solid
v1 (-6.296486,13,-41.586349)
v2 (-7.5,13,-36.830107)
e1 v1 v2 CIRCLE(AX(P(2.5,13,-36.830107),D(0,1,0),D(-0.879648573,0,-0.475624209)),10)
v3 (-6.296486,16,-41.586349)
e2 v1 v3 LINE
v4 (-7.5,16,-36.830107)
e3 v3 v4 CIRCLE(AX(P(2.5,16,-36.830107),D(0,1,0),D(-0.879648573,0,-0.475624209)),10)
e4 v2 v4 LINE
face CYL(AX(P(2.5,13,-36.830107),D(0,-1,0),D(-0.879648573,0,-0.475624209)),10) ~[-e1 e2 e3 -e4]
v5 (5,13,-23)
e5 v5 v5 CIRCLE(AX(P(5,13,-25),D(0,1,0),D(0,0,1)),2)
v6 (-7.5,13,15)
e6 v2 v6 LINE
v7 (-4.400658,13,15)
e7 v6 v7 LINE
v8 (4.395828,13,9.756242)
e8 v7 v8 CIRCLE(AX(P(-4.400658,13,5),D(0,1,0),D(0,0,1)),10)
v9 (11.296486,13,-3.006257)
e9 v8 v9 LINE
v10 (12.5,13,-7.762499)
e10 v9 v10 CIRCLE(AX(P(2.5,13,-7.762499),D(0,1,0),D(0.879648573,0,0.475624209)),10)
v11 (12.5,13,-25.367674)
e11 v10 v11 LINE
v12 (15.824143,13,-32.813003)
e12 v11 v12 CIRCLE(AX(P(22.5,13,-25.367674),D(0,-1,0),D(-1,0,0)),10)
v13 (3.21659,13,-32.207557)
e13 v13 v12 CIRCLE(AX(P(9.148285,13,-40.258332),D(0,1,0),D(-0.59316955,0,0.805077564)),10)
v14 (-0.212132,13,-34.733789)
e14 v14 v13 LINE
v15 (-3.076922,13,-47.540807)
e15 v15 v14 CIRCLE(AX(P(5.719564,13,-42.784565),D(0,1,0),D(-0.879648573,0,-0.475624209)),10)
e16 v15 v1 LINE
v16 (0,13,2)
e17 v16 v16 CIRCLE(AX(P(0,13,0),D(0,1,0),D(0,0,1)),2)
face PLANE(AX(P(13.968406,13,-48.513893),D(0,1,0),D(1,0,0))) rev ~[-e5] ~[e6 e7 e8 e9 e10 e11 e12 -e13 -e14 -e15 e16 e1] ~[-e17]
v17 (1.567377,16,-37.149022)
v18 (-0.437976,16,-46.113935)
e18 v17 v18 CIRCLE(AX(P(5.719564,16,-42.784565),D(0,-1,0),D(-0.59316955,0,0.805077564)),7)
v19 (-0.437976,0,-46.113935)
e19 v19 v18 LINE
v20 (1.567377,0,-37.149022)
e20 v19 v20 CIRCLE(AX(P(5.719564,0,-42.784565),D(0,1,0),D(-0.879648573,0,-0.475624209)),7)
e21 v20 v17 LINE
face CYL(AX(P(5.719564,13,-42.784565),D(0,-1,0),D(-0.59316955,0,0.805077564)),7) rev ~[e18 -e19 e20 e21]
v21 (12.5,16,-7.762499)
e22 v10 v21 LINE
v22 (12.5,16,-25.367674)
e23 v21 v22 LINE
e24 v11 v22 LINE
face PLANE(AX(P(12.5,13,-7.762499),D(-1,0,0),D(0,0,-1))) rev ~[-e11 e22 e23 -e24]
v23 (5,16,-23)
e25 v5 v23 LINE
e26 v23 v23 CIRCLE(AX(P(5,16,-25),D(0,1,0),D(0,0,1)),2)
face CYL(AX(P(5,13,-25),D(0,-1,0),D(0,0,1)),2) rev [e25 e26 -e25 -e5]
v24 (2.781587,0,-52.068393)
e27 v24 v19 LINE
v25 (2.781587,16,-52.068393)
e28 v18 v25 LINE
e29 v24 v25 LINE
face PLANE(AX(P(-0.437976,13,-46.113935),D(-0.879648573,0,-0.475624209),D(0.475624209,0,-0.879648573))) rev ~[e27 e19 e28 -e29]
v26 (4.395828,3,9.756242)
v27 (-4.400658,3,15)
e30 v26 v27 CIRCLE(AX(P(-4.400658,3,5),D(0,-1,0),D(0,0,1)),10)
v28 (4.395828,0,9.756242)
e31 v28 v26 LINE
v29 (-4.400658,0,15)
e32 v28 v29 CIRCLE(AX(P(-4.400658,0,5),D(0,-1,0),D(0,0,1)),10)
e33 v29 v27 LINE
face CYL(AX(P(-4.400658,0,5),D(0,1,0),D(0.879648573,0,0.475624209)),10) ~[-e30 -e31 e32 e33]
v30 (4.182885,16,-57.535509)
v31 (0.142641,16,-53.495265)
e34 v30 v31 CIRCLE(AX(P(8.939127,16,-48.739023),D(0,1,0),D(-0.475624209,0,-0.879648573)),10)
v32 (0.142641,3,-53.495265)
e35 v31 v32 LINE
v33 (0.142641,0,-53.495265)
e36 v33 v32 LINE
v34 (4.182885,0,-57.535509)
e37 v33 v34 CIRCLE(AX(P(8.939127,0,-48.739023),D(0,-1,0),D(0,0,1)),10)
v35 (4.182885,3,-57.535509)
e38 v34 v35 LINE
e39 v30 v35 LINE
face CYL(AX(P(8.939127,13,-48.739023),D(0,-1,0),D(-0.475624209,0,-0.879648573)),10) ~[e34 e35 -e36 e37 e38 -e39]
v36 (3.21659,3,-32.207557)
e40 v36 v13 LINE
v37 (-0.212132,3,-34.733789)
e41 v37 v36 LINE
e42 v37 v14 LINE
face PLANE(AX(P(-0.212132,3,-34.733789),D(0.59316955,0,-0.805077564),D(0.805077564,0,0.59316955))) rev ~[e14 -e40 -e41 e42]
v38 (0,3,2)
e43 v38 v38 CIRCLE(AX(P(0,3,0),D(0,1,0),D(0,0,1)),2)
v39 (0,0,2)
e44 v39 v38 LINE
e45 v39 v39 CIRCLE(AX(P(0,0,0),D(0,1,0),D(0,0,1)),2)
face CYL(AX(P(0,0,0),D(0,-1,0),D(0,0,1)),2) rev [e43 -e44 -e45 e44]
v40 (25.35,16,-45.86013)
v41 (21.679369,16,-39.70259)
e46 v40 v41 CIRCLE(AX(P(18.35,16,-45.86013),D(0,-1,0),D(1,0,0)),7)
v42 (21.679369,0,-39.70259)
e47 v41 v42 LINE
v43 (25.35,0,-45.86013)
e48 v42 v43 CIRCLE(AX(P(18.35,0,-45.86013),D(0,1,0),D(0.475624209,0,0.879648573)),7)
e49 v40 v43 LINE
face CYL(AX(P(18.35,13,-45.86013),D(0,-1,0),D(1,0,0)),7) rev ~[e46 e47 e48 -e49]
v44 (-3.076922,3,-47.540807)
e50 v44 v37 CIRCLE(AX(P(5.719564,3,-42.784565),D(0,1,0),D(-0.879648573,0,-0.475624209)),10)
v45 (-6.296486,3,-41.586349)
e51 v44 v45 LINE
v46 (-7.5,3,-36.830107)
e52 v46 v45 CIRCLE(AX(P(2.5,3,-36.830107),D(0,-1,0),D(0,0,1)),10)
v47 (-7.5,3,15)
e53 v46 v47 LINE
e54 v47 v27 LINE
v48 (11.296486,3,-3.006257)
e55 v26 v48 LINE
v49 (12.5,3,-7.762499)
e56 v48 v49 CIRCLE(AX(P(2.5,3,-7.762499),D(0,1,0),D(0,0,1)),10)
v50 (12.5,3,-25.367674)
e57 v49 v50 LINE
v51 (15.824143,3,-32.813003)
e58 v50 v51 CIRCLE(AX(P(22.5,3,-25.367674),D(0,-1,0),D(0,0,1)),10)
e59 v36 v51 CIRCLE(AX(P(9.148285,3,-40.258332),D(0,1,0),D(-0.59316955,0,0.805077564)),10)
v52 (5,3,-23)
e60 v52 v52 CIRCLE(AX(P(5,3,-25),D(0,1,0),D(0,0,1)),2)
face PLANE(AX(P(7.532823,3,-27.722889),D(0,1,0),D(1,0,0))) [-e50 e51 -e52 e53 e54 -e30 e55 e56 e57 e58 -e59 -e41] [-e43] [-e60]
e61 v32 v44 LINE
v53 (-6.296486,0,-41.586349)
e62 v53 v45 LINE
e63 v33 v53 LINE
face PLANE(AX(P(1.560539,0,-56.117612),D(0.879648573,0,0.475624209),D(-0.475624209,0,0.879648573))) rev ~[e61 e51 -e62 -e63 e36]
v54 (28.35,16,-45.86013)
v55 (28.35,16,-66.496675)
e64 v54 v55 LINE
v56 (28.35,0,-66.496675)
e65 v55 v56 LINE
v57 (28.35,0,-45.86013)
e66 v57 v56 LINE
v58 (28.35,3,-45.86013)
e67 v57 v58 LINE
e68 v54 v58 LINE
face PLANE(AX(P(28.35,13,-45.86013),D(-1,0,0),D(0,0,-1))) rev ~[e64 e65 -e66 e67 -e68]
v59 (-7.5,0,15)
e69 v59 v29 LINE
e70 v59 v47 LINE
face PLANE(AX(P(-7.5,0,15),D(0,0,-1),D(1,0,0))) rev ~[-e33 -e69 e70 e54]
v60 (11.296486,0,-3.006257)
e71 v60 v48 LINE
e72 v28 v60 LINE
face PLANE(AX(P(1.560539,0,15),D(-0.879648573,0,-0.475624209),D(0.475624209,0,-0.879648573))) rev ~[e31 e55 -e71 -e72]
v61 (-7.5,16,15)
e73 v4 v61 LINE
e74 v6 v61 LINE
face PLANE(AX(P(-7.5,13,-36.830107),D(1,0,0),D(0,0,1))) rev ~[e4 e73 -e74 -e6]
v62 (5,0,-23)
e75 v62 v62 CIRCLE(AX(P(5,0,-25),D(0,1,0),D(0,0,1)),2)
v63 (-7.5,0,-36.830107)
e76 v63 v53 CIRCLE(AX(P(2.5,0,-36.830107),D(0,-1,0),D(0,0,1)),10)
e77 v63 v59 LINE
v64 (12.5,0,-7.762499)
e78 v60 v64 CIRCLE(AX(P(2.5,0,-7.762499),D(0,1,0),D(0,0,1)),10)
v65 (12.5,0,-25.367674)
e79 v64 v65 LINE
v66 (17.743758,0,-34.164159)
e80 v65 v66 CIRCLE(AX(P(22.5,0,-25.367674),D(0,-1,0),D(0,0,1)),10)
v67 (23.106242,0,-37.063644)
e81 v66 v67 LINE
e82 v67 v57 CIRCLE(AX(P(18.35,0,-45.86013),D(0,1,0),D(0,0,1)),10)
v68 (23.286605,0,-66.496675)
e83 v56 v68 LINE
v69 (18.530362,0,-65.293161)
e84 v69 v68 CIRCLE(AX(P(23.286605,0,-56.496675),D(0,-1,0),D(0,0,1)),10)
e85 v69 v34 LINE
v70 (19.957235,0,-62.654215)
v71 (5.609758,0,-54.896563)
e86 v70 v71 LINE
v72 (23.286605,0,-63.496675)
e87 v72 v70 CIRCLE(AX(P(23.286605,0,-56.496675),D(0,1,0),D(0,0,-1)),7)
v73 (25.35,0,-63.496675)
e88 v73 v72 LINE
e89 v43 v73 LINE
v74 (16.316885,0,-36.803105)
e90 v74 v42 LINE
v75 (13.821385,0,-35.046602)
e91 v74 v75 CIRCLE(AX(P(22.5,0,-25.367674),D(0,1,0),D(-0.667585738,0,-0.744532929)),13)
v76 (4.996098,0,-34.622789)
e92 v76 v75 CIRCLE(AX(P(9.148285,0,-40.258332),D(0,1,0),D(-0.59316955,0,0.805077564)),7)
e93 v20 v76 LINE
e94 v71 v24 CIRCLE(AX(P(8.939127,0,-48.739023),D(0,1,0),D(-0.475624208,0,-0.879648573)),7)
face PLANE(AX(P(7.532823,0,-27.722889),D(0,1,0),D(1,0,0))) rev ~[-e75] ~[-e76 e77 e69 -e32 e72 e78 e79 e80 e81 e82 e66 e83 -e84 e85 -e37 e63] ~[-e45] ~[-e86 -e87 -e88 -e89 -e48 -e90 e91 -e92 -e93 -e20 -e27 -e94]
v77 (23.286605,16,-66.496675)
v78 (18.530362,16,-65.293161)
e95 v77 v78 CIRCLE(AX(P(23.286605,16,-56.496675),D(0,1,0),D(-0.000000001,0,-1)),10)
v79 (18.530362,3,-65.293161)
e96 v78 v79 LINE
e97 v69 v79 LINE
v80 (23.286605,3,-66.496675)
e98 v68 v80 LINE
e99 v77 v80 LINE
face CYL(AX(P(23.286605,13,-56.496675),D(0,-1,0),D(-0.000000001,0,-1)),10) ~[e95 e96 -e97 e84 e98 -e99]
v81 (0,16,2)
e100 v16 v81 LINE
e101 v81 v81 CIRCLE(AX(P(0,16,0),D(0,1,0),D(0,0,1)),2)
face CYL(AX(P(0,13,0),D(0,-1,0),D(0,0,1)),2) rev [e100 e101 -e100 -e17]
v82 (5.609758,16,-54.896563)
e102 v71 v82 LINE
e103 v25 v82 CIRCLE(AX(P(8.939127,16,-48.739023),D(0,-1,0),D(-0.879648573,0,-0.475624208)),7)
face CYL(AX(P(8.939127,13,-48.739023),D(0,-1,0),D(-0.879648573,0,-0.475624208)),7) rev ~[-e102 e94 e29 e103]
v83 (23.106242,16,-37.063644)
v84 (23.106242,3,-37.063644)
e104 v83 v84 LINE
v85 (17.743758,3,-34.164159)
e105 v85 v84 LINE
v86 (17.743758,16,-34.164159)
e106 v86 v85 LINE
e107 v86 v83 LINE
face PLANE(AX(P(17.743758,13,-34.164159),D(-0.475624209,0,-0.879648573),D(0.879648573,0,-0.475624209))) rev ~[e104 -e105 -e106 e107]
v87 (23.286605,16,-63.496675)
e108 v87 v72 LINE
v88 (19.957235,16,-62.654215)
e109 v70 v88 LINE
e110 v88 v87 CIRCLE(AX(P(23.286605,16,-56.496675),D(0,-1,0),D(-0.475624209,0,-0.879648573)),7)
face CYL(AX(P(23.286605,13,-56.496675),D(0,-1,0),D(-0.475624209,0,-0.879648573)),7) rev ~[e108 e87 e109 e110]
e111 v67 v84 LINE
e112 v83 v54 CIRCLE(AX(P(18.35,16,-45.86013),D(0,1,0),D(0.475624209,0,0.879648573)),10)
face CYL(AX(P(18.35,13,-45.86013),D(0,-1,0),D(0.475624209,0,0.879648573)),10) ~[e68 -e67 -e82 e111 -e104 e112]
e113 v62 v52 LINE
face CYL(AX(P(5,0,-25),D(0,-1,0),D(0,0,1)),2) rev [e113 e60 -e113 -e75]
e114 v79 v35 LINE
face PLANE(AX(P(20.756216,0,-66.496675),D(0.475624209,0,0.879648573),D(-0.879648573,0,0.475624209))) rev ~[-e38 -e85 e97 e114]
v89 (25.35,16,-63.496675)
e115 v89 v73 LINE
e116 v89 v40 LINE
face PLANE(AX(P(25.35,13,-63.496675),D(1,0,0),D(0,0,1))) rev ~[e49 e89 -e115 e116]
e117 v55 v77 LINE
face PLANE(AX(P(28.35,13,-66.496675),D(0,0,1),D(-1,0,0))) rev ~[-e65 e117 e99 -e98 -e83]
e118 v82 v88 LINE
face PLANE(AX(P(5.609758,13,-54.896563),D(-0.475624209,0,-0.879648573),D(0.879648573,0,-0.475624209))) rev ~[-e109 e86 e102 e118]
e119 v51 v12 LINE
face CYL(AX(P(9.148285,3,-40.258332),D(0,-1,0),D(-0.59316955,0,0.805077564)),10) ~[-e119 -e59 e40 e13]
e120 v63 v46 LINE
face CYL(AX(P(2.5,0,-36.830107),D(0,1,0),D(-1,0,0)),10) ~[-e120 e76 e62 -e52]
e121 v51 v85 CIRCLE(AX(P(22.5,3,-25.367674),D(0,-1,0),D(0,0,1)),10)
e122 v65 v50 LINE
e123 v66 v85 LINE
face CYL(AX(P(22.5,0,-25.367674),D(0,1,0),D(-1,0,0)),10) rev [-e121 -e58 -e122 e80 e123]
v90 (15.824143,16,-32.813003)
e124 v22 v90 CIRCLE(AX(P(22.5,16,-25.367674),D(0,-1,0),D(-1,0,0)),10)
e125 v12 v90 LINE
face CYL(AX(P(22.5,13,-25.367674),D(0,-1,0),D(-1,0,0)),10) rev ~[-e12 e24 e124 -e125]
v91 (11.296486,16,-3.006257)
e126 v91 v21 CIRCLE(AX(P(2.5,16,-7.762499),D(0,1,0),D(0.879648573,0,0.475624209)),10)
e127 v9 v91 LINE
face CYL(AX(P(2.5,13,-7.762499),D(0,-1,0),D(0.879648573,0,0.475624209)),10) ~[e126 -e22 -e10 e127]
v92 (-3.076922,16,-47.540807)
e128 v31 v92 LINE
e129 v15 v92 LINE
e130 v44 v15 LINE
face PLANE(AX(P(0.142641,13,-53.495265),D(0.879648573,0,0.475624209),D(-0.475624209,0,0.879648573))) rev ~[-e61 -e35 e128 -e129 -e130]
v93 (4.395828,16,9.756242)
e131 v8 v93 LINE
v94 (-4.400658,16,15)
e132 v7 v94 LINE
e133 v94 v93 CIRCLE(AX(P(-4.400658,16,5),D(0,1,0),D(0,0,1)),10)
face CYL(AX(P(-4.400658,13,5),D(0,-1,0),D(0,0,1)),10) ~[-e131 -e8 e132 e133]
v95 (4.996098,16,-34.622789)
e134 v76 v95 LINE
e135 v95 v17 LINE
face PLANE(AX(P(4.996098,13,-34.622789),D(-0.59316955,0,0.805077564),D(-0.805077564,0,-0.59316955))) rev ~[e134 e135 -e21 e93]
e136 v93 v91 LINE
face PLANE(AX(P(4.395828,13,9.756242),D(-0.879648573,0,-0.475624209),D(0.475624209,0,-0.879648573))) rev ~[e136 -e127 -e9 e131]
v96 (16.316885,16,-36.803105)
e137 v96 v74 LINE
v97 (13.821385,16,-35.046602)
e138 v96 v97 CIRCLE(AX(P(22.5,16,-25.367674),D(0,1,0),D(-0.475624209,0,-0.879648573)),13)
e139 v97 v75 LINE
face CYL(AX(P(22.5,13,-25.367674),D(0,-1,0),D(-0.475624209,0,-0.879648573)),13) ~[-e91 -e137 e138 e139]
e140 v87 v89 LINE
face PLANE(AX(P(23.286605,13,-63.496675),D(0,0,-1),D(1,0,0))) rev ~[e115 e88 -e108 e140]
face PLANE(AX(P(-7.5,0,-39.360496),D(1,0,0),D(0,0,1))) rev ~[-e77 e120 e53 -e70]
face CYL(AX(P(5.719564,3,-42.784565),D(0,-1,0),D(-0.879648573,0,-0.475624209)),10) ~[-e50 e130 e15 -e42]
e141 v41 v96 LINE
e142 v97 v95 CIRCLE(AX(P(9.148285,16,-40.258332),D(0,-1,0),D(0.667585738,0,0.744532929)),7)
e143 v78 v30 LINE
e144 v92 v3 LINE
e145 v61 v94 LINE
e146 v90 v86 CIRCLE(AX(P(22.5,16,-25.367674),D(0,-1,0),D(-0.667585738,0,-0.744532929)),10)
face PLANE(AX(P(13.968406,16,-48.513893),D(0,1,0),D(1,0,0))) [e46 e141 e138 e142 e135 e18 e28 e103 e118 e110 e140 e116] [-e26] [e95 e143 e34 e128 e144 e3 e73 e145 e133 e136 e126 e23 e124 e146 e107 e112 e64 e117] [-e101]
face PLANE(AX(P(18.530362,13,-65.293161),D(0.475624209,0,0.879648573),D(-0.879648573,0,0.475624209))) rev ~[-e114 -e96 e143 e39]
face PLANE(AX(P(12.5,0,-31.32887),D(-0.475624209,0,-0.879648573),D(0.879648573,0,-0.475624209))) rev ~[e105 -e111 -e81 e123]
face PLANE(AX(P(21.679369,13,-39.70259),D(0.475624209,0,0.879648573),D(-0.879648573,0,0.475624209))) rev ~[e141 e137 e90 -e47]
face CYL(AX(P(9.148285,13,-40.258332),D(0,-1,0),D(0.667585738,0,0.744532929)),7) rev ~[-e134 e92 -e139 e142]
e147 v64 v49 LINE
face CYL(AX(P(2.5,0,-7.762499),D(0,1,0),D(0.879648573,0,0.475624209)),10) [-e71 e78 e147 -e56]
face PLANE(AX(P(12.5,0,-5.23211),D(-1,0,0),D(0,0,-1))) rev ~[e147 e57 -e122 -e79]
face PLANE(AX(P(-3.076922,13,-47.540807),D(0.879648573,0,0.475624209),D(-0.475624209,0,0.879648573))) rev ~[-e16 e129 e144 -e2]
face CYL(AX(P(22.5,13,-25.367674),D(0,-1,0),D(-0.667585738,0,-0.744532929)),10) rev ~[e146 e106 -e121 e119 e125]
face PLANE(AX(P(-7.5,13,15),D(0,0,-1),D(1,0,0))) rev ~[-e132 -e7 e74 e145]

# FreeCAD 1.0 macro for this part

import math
import FreeCAD as App
import Part
import Sketcher

V = App.Vector
Q = App.Units.Quantity


def edges_at(feature, points):
    """Names of the edges that pass closest to the given points."""
    edges = feature.Shape.Edges
    near = lambda p: min(range(len(edges)), key=lambda i: edges[i].distToShape(Part.Vertex(*p))[0])
    return sorted({f"Edge{near(p) + 1}" for p in points})


def add_polygon(sketch, points):
    """Adds a closed chain of lines whose ends are joined by coincident constraints."""
    first, n = sketch.GeometryCount, len(points)
    for a, b in zip(points, points[1:] + points[:1]):
        sketch.addGeometry(Part.LineSegment(App.Vector(*a, 0), App.Vector(*b, 0)), False)
    for i in range(n):
        sketch.addConstraint(Sketcher.Constraint("Coincident", first + i, 2, first + (i + 1) % n, 1))

doc = App.newDocument("Part")
body = doc.addObject("PartDesign::Body", "Body")

# Sketch on XZ plane
sketch1 = body.newObject("Sketcher::SketchObject", "Sketch")
sketch1.AttachmentSupport = (doc.getObject("XZ_Plane"), [""])
sketch1.MapMode = "FlatFace"
add_polygon(sketch1, [(1.560539, 15), (12.5, -5.23211), (12.5, -31.32887), (28.35, -39.898933), (28.35, -66.496675), (20.756216, -66.496675), (1.560539, -56.117612), (-7.5, -39.360496), (-7.5, 15)])  # lines 0-8
sketch1.addGeometry(Part.Circle(V(0, 0, 0), V(0, 0, 1), 2), False)  # 9
sketch1.addGeometry(Part.Circle(V(5, -25, 0), V(0, 0, 1), 2), False)  # 10
sketch1.addConstraint(Sketcher.Constraint("Vertical", 1))
sketch1.addConstraint(Sketcher.Constraint("Vertical", 3))
sketch1.addConstraint(Sketcher.Constraint("Horizontal", 4))
sketch1.addConstraint(Sketcher.Constraint("Vertical", 7))
sketch1.addConstraint(Sketcher.Constraint("Horizontal", 8))
sketch1.addConstraint(Sketcher.Constraint("Coincident", 9, 3, -1, 1))
sketch1.addConstraint(Sketcher.Constraint("Equal", 9, 10))
sketch1.addConstraint(Sketcher.Constraint("Parallel", 2, 5))
sketch1.addConstraint(Sketcher.Constraint("Parallel", 0, 6))
sketch1.addConstraint(Sketcher.Constraint("Vertical", 5, 2, 8, 2))
sketch1.addConstraint(Sketcher.Constraint("Diameter", 9, Q("4 mm")))
sketch1.addConstraint(Sketcher.Constraint("DistanceX", -1, 1, 10, 3, Q("5 mm")))
sketch1.addConstraint(Sketcher.Constraint("DistanceY", 10, 3, -1, 1, Q("25 mm")))
sketch1.addConstraint(Sketcher.Constraint("DistanceY", -1, 1, 7, 2, Q("15 mm")))
sketch1.addConstraint(Sketcher.Constraint("Angle", 0, Q("-61.6 deg")))
sketch1.addConstraint(Sketcher.Constraint("Angle", 2, Q("-28.4 deg")))
sketch1.addConstraint(Sketcher.Constraint("DistanceX", 6, 2, 1, 2, Q("20 mm")))
sketch1.addConstraint(Sketcher.Constraint("DistanceX", -1, 1, 0, 2, Q("12.5 mm")))
sketch1.addConstraint(Sketcher.Constraint("DistanceX", -1, 1, 2, 2, Q("28.35 mm")))
sketch1.addConstraint(Sketcher.Constraint("DistanceX", 8, 1, 8, 2, Q("9.060539 mm")))
sketch1.addConstraint(Sketcher.Constraint("DistanceY", 1, 2, 1, 1, Q("26.09676 mm")))
sketch1.addConstraint(Sketcher.Constraint("DistanceX", 4, 2, 4, 1, Q("7.593784 mm")))
sketch1.addConstraint(Sketcher.Constraint("DistanceY", 3, 2, 3, 1, Q("26.597742 mm")))
pad1 = body.newObject("PartDesign::Pad", "Pad")
pad1.Profile = sketch1
pad1.Length = 3
pad1.Reversed = True
doc.recompute()

fillet = body.newObject("PartDesign::Fillet", "Fillet")
fillet.Base = (pad1, edges_at(pad1, [
    (-7.5, 1.5, -39.36),
    (1.561, 1.5, -56.118),
    (20.756, 1.5, -66.497),
    (28.35, 1.5, -39.899),
    (12.5, 1.5, -31.329),
    (12.5, 1.5, -5.232),
    (1.561, 1.5, 15),
]))
fillet.Radius = 10

# Sketch on XZ plane
sketch2 = body.newObject("Sketcher::SketchObject", "Sketch001")
sketch2.AttachmentSupport = (doc.getObject("XZ_Plane"), [""])
sketch2.MapMode = "FlatFace"
sketch2.AttachmentOffset = App.Placement(V(0, 0, -3), App.Rotation())
sketch2.addGeometry(Part.LineSegment(V(-0.212132, -34.733789, 0), V(3.21659, -32.207557, 0)), False)
sketch2.addGeometry(Part.ArcOfCircle(Part.Circle(V(9.148285, -40.258332, 0), V(0, 0, 1), 10), math.radians(48.118997), math.radians(126.382253)), False)
sketch2.addGeometry(Part.ArcOfCircle(Part.Circle(V(22.5, -25.367674, 0), V(0, 0, 1), 10), math.radians(-131.881003), math.radians(-118.4)), False)
sketch2.addGeometry(Part.LineSegment(V(17.743758, -34.164159, 0), V(23.106242, -37.063644, 0)), False)
sketch2.addGeometry(Part.ArcOfCircle(Part.Circle(V(18.35, -45.86013, 0), V(0, 0, 1), 10), math.radians(0), math.radians(61.6)), False)
sketch2.addGeometry(Part.LineSegment(V(28.35, -45.86013, 0), V(28.35, -66.496675, 0)), False)
sketch2.addGeometry(Part.LineSegment(V(28.35, -66.496675, 0), V(23.286605, -66.496675, 0)), False)
sketch2.addGeometry(Part.ArcOfCircle(Part.Circle(V(23.286605, -56.496675, 0), V(0, 0, 1), 10), math.radians(-118.4), math.radians(-90)), False)
sketch2.addGeometry(Part.LineSegment(V(18.530362, -65.293161, 0), V(4.182885, -57.535509, 0)), False)
sketch2.addGeometry(Part.ArcOfCircle(Part.Circle(V(8.939127, -48.739023, 0), V(0, 0, 1), 10), math.radians(-151.6), math.radians(-118.4)), False)
sketch2.addGeometry(Part.LineSegment(V(0.142641, -53.495265, 0), V(-3.076922, -47.540807, 0)), False)
sketch2.addGeometry(Part.ArcOfCircle(Part.Circle(V(5.719564, -42.784565, 0), V(0, 0, 1), 10), math.radians(126.382253), math.radians(208.4)), False)
sketch2.addGeometry(Part.LineSegment(V(4.996098, -34.622789, 0), V(1.567377, -37.149022, 0)), False)
sketch2.addGeometry(Part.ArcOfCircle(Part.Circle(V(5.719564, -42.784565, 0), V(0, 0, 1), 7), math.radians(126.382253), math.radians(208.4)), False)
sketch2.addGeometry(Part.LineSegment(V(-0.437976, -46.113935, 0), V(2.781587, -52.068393, 0)), False)
sketch2.addGeometry(Part.ArcOfCircle(Part.Circle(V(8.939127, -48.739023, 0), V(0, 0, 1), 7), math.radians(-151.6), math.radians(-118.4)), False)
sketch2.addGeometry(Part.LineSegment(V(5.609758, -54.896563, 0), V(19.957235, -62.654215, 0)), False)
sketch2.addGeometry(Part.ArcOfCircle(Part.Circle(V(23.286605, -56.496675, 0), V(0, 0, 1), 7), math.radians(-118.4), math.radians(-90)), False)
sketch2.addGeometry(Part.LineSegment(V(23.286605, -63.496675, 0), V(25.35, -63.496675, 0)), False)
sketch2.addGeometry(Part.LineSegment(V(25.35, -63.496675, 0), V(25.35, -45.86013, 0)), False)
sketch2.addGeometry(Part.ArcOfCircle(Part.Circle(V(18.35, -45.86013, 0), V(0, 0, 1), 7), math.radians(0), math.radians(61.6)), False)
sketch2.addGeometry(Part.LineSegment(V(21.679369, -39.70259, 0), V(16.316885, -36.803105, 0)), False)
sketch2.addGeometry(Part.ArcOfCircle(Part.Circle(V(22.5, -25.367674, 0), V(0, 0, 1), 13), math.radians(-131.881003), math.radians(-118.4)), False)
sketch2.addGeometry(Part.ArcOfCircle(Part.Circle(V(9.148285, -40.258332, 0), V(0, 0, 1), 7), math.radians(48.118997), math.radians(126.382253)), False)
sketch2.addConstraint(Sketcher.Constraint("Tangent", 0, 2, 1, 2))
sketch2.addConstraint(Sketcher.Constraint("Tangent", 1, 1, 2, 1))
sketch2.addConstraint(Sketcher.Constraint("Tangent", 2, 2, 3, 1))
sketch2.addConstraint(Sketcher.Constraint("Tangent", 3, 2, 4, 2))
sketch2.addConstraint(Sketcher.Constraint("Tangent", 4, 1, 5, 1))
sketch2.addConstraint(Sketcher.Constraint("Coincident", 5, 2, 6, 1))
sketch2.addConstraint(Sketcher.Constraint("Tangent", 6, 2, 7, 2))
sketch2.addConstraint(Sketcher.Constraint("Tangent", 7, 1, 8, 1))
sketch2.addConstraint(Sketcher.Constraint("Tangent", 8, 2, 9, 2))
sketch2.addConstraint(Sketcher.Constraint("Tangent", 9, 1, 10, 1))
sketch2.addConstraint(Sketcher.Constraint("Tangent", 10, 2, 11, 2))
sketch2.addConstraint(Sketcher.Constraint("Tangent", 11, 1, 0, 1))
sketch2.addConstraint(Sketcher.Constraint("Tangent", 12, 2, 13, 1))
sketch2.addConstraint(Sketcher.Constraint("Tangent", 13, 2, 14, 1))
sketch2.addConstraint(Sketcher.Constraint("Tangent", 14, 2, 15, 1))
sketch2.addConstraint(Sketcher.Constraint("Tangent", 15, 2, 16, 1))
sketch2.addConstraint(Sketcher.Constraint("Tangent", 16, 2, 17, 1))
sketch2.addConstraint(Sketcher.Constraint("Tangent", 17, 2, 18, 1))
sketch2.addConstraint(Sketcher.Constraint("Coincident", 18, 2, 19, 1))
sketch2.addConstraint(Sketcher.Constraint("Tangent", 19, 2, 20, 1))
sketch2.addConstraint(Sketcher.Constraint("Tangent", 20, 2, 21, 1))
sketch2.addConstraint(Sketcher.Constraint("Tangent", 21, 2, 22, 2))
sketch2.addConstraint(Sketcher.Constraint("Tangent", 22, 1, 23, 1))
sketch2.addConstraint(Sketcher.Constraint("Tangent", 23, 2, 12, 1))
sketch2.addConstraint(Sketcher.Constraint("Vertical", 5))
sketch2.addConstraint(Sketcher.Constraint("Horizontal", 6))
sketch2.addConstraint(Sketcher.Constraint("Horizontal", 18))
sketch2.addConstraint(Sketcher.Constraint("Vertical", 19))
sketch2.addConstraint(Sketcher.Constraint("Coincident", 13, 3, 11, 3))
sketch2.addConstraint(Sketcher.Constraint("Coincident", 15, 3, 9, 3))
sketch2.addConstraint(Sketcher.Constraint("Coincident", 17, 3, 7, 3))
sketch2.addConstraint(Sketcher.Constraint("Coincident", 20, 3, 4, 3))
sketch2.addConstraint(Sketcher.Constraint("Coincident", 22, 3, 2, 3))
sketch2.addConstraint(Sketcher.Constraint("Coincident", 23, 3, 1, 3))
sketch2.addConstraint(Sketcher.Constraint("Equal", 1, 2))
sketch2.addConstraint(Sketcher.Constraint("Equal", 2, 4))
sketch2.addConstraint(Sketcher.Constraint("Equal", 4, 7))
sketch2.addConstraint(Sketcher.Constraint("Equal", 7, 9))
sketch2.addConstraint(Sketcher.Constraint("Equal", 9, 11))
sketch2.addConstraint(Sketcher.Constraint("Equal", 13, 15))
sketch2.addConstraint(Sketcher.Constraint("Equal", 15, 17))
sketch2.addConstraint(Sketcher.Constraint("Equal", 17, 20))
sketch2.addConstraint(Sketcher.Constraint("Equal", 20, 23))
sketch2.addConstraint(Sketcher.Constraint("Parallel", 3, 8))
sketch2.addConstraint(Sketcher.Constraint("Radius", 1, Q("10 mm")))
sketch2.addConstraint(Sketcher.Constraint("Radius", 13, Q("7 mm")))
sketch2.addConstraint(Sketcher.Constraint("Angle", 3, Q("-28.4 deg")))
sketch2.addConstraint(Sketcher.Constraint("Angle", 10, Q("118.4 deg")))
sketch2.addConstraint(Sketcher.Constraint("DistanceX", -1, 1, 2, 3, Q("22.5 mm")))
sketch2.addConstraint(Sketcher.Constraint("DistanceX", -1, 1, 4, 3, Q("18.35 mm")))
sketch2.addConstraint(Sketcher.Constraint("DistanceY", 7, 3, 2, 3, Q("31.129002 mm")))
sketch2.addConstraint(Sketcher.Constraint("DistanceY", 11, 1, 23, 2, Q("0.111 mm")))
sketch2.addConstraint(Sketcher.Constraint("DistanceY", 22, 1, -1, 1, Q("35.046602 mm")))
sketch2.addConstraint(Sketcher.Constraint("DistanceX", -1, 1, 23, 2, Q("4.996098 mm")))
sketch2.addConstraint(Sketcher.Constraint("DistanceX", 1, 1, 3, 2, Q("7.282099 mm")))
sketch2.addConstraint(Sketcher.Constraint("DistanceY", 9, 1, 11, 3, Q("10.7107 mm")))
pad2 = body.newObject("PartDesign::Pad", "Pad001")
pad2.Profile = sketch2
pad2.Length = 10
pad2.Reversed = True

# Sketch on XZ plane
sketch3 = body.newObject("Sketcher::SketchObject", "Sketch002")
sketch3.AttachmentSupport = (doc.getObject("XZ_Plane"), [""])
sketch3.MapMode = "FlatFace"
sketch3.AttachmentOffset = App.Placement(V(0, 0, -13), App.Rotation())
sketch3.addGeometry(Part.LineSegment(V(0.142641, -53.495265, 0), V(-3.076922, -47.540807, 0)), False)
sketch3.addGeometry(Part.LineSegment(V(-3.076922, -47.540807, 0), V(-6.296486, -41.586349, 0)), False)
sketch3.addGeometry(Part.ArcOfCircle(Part.Circle(V(2.5, -36.830107, 0), V(0, 0, 1), 10), math.radians(-180), math.radians(-151.6)), False)
sketch3.addGeometry(Part.LineSegment(V(-7.5, -36.830107, 0), V(-7.5, 15, 0)), False)
sketch3.addGeometry(Part.LineSegment(V(-7.5, 15, 0), V(-4.400658, 15, 0)), False)
sketch3.addGeometry(Part.ArcOfCircle(Part.Circle(V(-4.400658, 5, 0), V(0, 0, 1), 10), math.radians(28.4), math.radians(90)), False)
sketch3.addGeometry(Part.LineSegment(V(4.395828, 9.756242, 0), V(11.296486, -3.006257, 0)), False)
sketch3.addGeometry(Part.ArcOfCircle(Part.Circle(V(2.5, -7.762499, 0), V(0, 0, 1), 10), math.radians(0), math.radians(28.4)), False)
sketch3.addGeometry(Part.LineSegment(V(12.5, -7.762499, 0), V(12.5, -25.367674, 0)), False)
sketch3.addGeometry(Part.ArcOfCircle(Part.Circle(V(22.5, -25.367674, 0), V(0, 0, 1), 10), math.radians(180), math.radians(228.118997)), False)
sketch3.addGeometry(Part.ArcOfCircle(Part.Circle(V(22.5, -25.367674, 0), V(0, 0, 1), 10), math.radians(-131.881003), math.radians(-118.4)), False)
sketch3.addGeometry(Part.LineSegment(V(17.743758, -34.164159, 0), V(23.106242, -37.063644, 0)), False)
sketch3.addGeometry(Part.ArcOfCircle(Part.Circle(V(18.35, -45.86013, 0), V(0, 0, 1), 10), math.radians(0), math.radians(61.6)), False)
sketch3.addGeometry(Part.LineSegment(V(28.35, -45.86013, 0), V(28.35, -66.496675, 0)), False)
sketch3.addGeometry(Part.LineSegment(V(28.35, -66.496675, 0), V(23.286605, -66.496675, 0)), False)
sketch3.addGeometry(Part.ArcOfCircle(Part.Circle(V(23.286605, -56.496675, 0), V(0, 0, 1), 10), math.radians(-118.4), math.radians(-90)), False)
sketch3.addGeometry(Part.LineSegment(V(18.530362, -65.293161, 0), V(4.182885, -57.535509, 0)), False)
sketch3.addGeometry(Part.ArcOfCircle(Part.Circle(V(8.939127, -48.739023, 0), V(0, 0, 1), 10), math.radians(-151.6), math.radians(-118.4)), False)
sketch3.addGeometry(Part.Circle(V(0, 0, 0), V(0, 0, 1), 2), False)
sketch3.addGeometry(Part.Circle(V(5, -25, 0), V(0, 0, 1), 2), False)
sketch3.addGeometry(Part.ArcOfCircle(Part.Circle(V(9.148285, -40.258332, 0), V(0, 0, 1), 7), math.radians(48.118997), math.radians(126.382253)), False)
sketch3.addGeometry(Part.LineSegment(V(4.996098, -34.622789, 0), V(1.567377, -37.149022, 0)), False)
sketch3.addGeometry(Part.ArcOfCircle(Part.Circle(V(5.719564, -42.784565, 0), V(0, 0, 1), 7), math.radians(126.382253), math.radians(208.4)), False)
sketch3.addGeometry(Part.LineSegment(V(-0.437976, -46.113935, 0), V(2.781587, -52.068393, 0)), False)
sketch3.addGeometry(Part.ArcOfCircle(Part.Circle(V(8.939127, -48.739023, 0), V(0, 0, 1), 7), math.radians(-151.6), math.radians(-118.4)), False)
sketch3.addGeometry(Part.LineSegment(V(5.609758, -54.896563, 0), V(19.957235, -62.654215, 0)), False)
sketch3.addGeometry(Part.ArcOfCircle(Part.Circle(V(23.286605, -56.496675, 0), V(0, 0, 1), 7), math.radians(-118.4), math.radians(-90)), False)
sketch3.addGeometry(Part.LineSegment(V(23.286605, -63.496675, 0), V(25.35, -63.496675, 0)), False)
sketch3.addGeometry(Part.LineSegment(V(25.35, -63.496675, 0), V(25.35, -45.86013, 0)), False)
sketch3.addGeometry(Part.ArcOfCircle(Part.Circle(V(18.35, -45.86013, 0), V(0, 0, 1), 7), math.radians(0), math.radians(61.6)), False)
sketch3.addGeometry(Part.LineSegment(V(21.679369, -39.70259, 0), V(16.316885, -36.803105, 0)), False)
sketch3.addGeometry(Part.ArcOfCircle(Part.Circle(V(22.5, -25.367674, 0), V(0, 0, 1), 13), math.radians(-131.881003), math.radians(-118.4)), False)
sketch3.addConstraint(Sketcher.Constraint("Coincident", 0, 2, 1, 1))
sketch3.addConstraint(Sketcher.Constraint("Tangent", 1, 2, 2, 2))
sketch3.addConstraint(Sketcher.Constraint("Tangent", 2, 1, 3, 1))
sketch3.addConstraint(Sketcher.Constraint("Coincident", 3, 2, 4, 1))
sketch3.addConstraint(Sketcher.Constraint("Tangent", 4, 2, 5, 2))
sketch3.addConstraint(Sketcher.Constraint("Tangent", 5, 1, 6, 1))
sketch3.addConstraint(Sketcher.Constraint("Tangent", 6, 2, 7, 2))
sketch3.addConstraint(Sketcher.Constraint("Tangent", 7, 1, 8, 1))
sketch3.addConstraint(Sketcher.Constraint("Tangent", 8, 2, 9, 1))
sketch3.addConstraint(Sketcher.Constraint("Tangent", 9, 2, 10, 1))
sketch3.addConstraint(Sketcher.Constraint("Tangent", 10, 2, 11, 1))
sketch3.addConstraint(Sketcher.Constraint("Tangent", 11, 2, 12, 2))
sketch3.addConstraint(Sketcher.Constraint("Tangent", 12, 1, 13, 1))
sketch3.addConstraint(Sketcher.Constraint("Coincident", 13, 2, 14, 1))
sketch3.addConstraint(Sketcher.Constraint("Tangent", 14, 2, 15, 2))
sketch3.addConstraint(Sketcher.Constraint("Tangent", 15, 1, 16, 1))
sketch3.addConstraint(Sketcher.Constraint("Tangent", 16, 2, 17, 2))
sketch3.addConstraint(Sketcher.Constraint("Tangent", 17, 1, 0, 1))
sketch3.addConstraint(Sketcher.Constraint("Tangent", 20, 2, 21, 1))
sketch3.addConstraint(Sketcher.Constraint("Tangent", 21, 2, 22, 1))
sketch3.addConstraint(Sketcher.Constraint("Tangent", 22, 2, 23, 1))
sketch3.addConstraint(Sketcher.Constraint("Tangent", 23, 2, 24, 1))
sketch3.addConstraint(Sketcher.Constraint("Tangent", 24, 2, 25, 1))
sketch3.addConstraint(Sketcher.Constraint("Tangent", 25, 2, 26, 1))
sketch3.addConstraint(Sketcher.Constraint("Tangent", 26, 2, 27, 1))
sketch3.addConstraint(Sketcher.Constraint("Coincident", 27, 2, 28, 1))
sketch3.addConstraint(Sketcher.Constraint("Tangent", 28, 2, 29, 1))
sketch3.addConstraint(Sketcher.Constraint("Tangent", 29, 2, 30, 1))
sketch3.addConstraint(Sketcher.Constraint("Tangent", 30, 2, 31, 2))
sketch3.addConstraint(Sketcher.Constraint("Tangent", 31, 1, 20, 1))
sketch3.addConstraint(Sketcher.Constraint("Vertical", 3))
sketch3.addConstraint(Sketcher.Constraint("Horizontal", 4))
sketch3.addConstraint(Sketcher.Constraint("Vertical", 8))
sketch3.addConstraint(Sketcher.Constraint("Vertical", 13))
sketch3.addConstraint(Sketcher.Constraint("Horizontal", 14))
sketch3.addConstraint(Sketcher.Constraint("Horizontal", 27))
sketch3.addConstraint(Sketcher.Constraint("Vertical", 28))
sketch3.addConstraint(Sketcher.Constraint("Coincident", 18, 3, -1, 1))
sketch3.addConstraint(Sketcher.Constraint("Coincident", 24, 3, 17, 3))
sketch3.addConstraint(Sketcher.Constraint("Coincident", 26, 3, 15, 3))
sketch3.addConstraint(Sketcher.Constraint("Coincident", 29, 3, 12, 3))
sketch3.addConstraint(Sketcher.Constraint("Coincident", 31, 3, 9, 3))
sketch3.addConstraint(Sketcher.Constraint("Equal", 2, 5))
sketch3.addConstraint(Sketcher.Constraint("Equal", 5, 7))
sketch3.addConstraint(Sketcher.Constraint("Equal", 7, 9))
sketch3.addConstraint(Sketcher.Constraint("Equal", 9, 10))
sketch3.addConstraint(Sketcher.Constraint("Equal", 10, 12))
sketch3.addConstraint(Sketcher.Constraint("Equal", 12, 15))
sketch3.addConstraint(Sketcher.Constraint("Equal", 15, 17))
sketch3.addConstraint(Sketcher.Constraint("Equal", 18, 19))
sketch3.addConstraint(Sketcher.Constraint("Equal", 20, 22))
sketch3.addConstraint(Sketcher.Constraint("Equal", 22, 24))
sketch3.addConstraint(Sketcher.Constraint("Equal", 24, 26))
sketch3.addConstraint(Sketcher.Constraint("Equal", 26, 29))
sketch3.addConstraint(Sketcher.Constraint("Parallel", 0, 1))
sketch3.addConstraint(Sketcher.Constraint("Parallel", 1, 6))
sketch3.addConstraint(Sketcher.Constraint("Parallel", 11, 16))
sketch3.addConstraint(Sketcher.Constraint("Parallel", 6, 23))
sketch3.addConstraint(Sketcher.Constraint("Parallel", 25, 30))
sketch3.addConstraint(Sketcher.Constraint("Vertical", 2, 3, 7, 3))
sketch3.addConstraint(Sketcher.Constraint("Equal", 0, 1))
sketch3.addConstraint(Sketcher.Constraint("Equal", 1, 23))
sketch3.addConstraint(Sketcher.Constraint("Diameter", 18, Q("4 mm")))
sketch3.addConstraint(Sketcher.Constraint("Radius", 2, Q("10 mm")))
sketch3.addConstraint(Sketcher.Constraint("Radius", 20, Q("7 mm")))
sketch3.addConstraint(Sketcher.Constraint("DistanceY", -1, 1, 5, 3, Q("5 mm")))
sketch3.addConstraint(Sketcher.Constraint("DistanceX", -1, 1, 19, 3, Q("5 mm")))
sketch3.addConstraint(Sketcher.Constraint("DistanceY", 19, 3, -1, 1, Q("25 mm")))
sketch3.addConstraint(Sketcher.Constraint("Angle", 0, Q("118.4 deg")))
sketch3.addConstraint(Sketcher.Constraint("Angle", 11, Q("-28.4 deg")))
sketch3.addConstraint(Sketcher.Constraint("DistanceX", -1, 1, 2, 3, Q("2.5 mm")))
sketch3.addConstraint(Sketcher.Constraint("DistanceX", -1, 1, 12, 3, Q("18.35 mm")))
sketch3.addConstraint(Sketcher.Constraint("DistanceY", 15, 3, 9, 3, Q("31.129002 mm")))
sketch3.addConstraint(Sketcher.Constraint("DistanceY", 7, 3, -1, 1, Q("7.762499 mm")))
sketch3.addConstraint(Sketcher.Constraint("DistanceX", -1, 1, 20, 2, Q("4.996098 mm")))
sketch3.addConstraint(Sketcher.Constraint("DistanceY", 31, 1, -1, 1, Q("35.046602 mm")))
sketch3.addConstraint(Sketcher.Constraint("DistanceY", 0, 2, 2, 3, Q("10.7107 mm")))
sketch3.addConstraint(Sketcher.Constraint("DistanceX", 9, 2, 11, 2, Q("7.282099 mm")))
sketch3.addConstraint(Sketcher.Constraint("DistanceX", 20, 3, 30, 2, Q("7.1686 mm")))
pad3 = body.newObject("PartDesign::Pad", "Pad002")
pad3.Profile = sketch3
pad3.Length = 3
pad3.Reversed = True

# Sketch on XZ plane
sketch4 = body.newObject("Sketcher::SketchObject", "Sketch003")
sketch4.AttachmentSupport = (doc.getObject("XZ_Plane"), [""])
sketch4.MapMode = "FlatFace"
sketch4.AttachmentOffset = App.Placement(V(0, 0, -3), App.Rotation())
sketch4.addGeometry(Part.LineSegment(V(19.957235, -62.654215, 0), V(5.609758, -54.896563, 0)), False)
sketch4.addGeometry(Part.ArcOfCircle(Part.Circle(V(8.939127, -48.739023, 0), V(0, 0, 1), 7), math.radians(-151.6), math.radians(-118.4)), False)
sketch4.addGeometry(Part.LineSegment(V(2.781587, -52.068393, 0), V(-0.437976, -46.113935, 0)), False)
sketch4.addGeometry(Part.ArcOfCircle(Part.Circle(V(5.719564, -42.784565, 0), V(0, 0, 1), 7), math.radians(126.382253), math.radians(208.4)), False)
sketch4.addGeometry(Part.LineSegment(V(1.567377, -37.149022, 0), V(4.996098, -34.622789, 0)), False)
sketch4.addGeometry(Part.ArcOfCircle(Part.Circle(V(9.148285, -40.258332, 0), V(0, 0, 1), 7), math.radians(48.118997), math.radians(126.382253)), False)
sketch4.addGeometry(Part.ArcOfCircle(Part.Circle(V(22.5, -25.367674, 0), V(0, 0, 1), 13), math.radians(-131.881003), math.radians(-118.4)), False)
sketch4.addGeometry(Part.LineSegment(V(16.316885, -36.803105, 0), V(21.679369, -39.70259, 0)), False)
sketch4.addGeometry(Part.ArcOfCircle(Part.Circle(V(18.35, -45.86013, 0), V(0, 0, 1), 7), math.radians(0), math.radians(61.6)), False)
sketch4.addGeometry(Part.LineSegment(V(25.35, -45.86013, 0), V(25.35, -63.496675, 0)), False)
sketch4.addGeometry(Part.LineSegment(V(25.35, -63.496675, 0), V(23.286605, -63.496675, 0)), False)
sketch4.addGeometry(Part.ArcOfCircle(Part.Circle(V(23.286605, -56.496675, 0), V(0, 0, 1), 7), math.radians(-118.4), math.radians(-90)), False)
sketch4.addConstraint(Sketcher.Constraint("Tangent", 0, 2, 1, 2))
sketch4.addConstraint(Sketcher.Constraint("Tangent", 1, 1, 2, 1))
sketch4.addConstraint(Sketcher.Constraint("Tangent", 2, 2, 3, 2))
sketch4.addConstraint(Sketcher.Constraint("Tangent", 3, 1, 4, 1))
sketch4.addConstraint(Sketcher.Constraint("Tangent", 4, 2, 5, 2))
sketch4.addConstraint(Sketcher.Constraint("Tangent", 5, 1, 6, 1))
sketch4.addConstraint(Sketcher.Constraint("Tangent", 6, 2, 7, 1))
sketch4.addConstraint(Sketcher.Constraint("Tangent", 7, 2, 8, 2))
sketch4.addConstraint(Sketcher.Constraint("Tangent", 8, 1, 9, 1))
sketch4.addConstraint(Sketcher.Constraint("Coincident", 9, 2, 10, 1))
sketch4.addConstraint(Sketcher.Constraint("Tangent", 10, 2, 11, 2))
sketch4.addConstraint(Sketcher.Constraint("Tangent", 11, 1, 0, 1))
sketch4.addConstraint(Sketcher.Constraint("Vertical", 9))
sketch4.addConstraint(Sketcher.Constraint("Horizontal", 10))
sketch4.addConstraint(Sketcher.Constraint("Equal", 1, 3))
sketch4.addConstraint(Sketcher.Constraint("Equal", 3, 5))
sketch4.addConstraint(Sketcher.Constraint("Equal", 5, 8))
sketch4.addConstraint(Sketcher.Constraint("Equal", 8, 11))
sketch4.addConstraint(Sketcher.Constraint("Parallel", 0, 7))
sketch4.addConstraint(Sketcher.Constraint("Radius", 1, Q("7 mm")))
sketch4.addConstraint(Sketcher.Constraint("Radius", 6, Q("13 mm")))
sketch4.addConstraint(Sketcher.Constraint("Angle", 0, Q("151.6 deg")))
sketch4.addConstraint(Sketcher.Constraint("Angle", 2, Q("118.4 deg")))
sketch4.addConstraint(Sketcher.Constraint("DistanceX", -1, 1, 6, 3, Q("22.5 mm")))
sketch4.addConstraint(Sketcher.Constraint("DistanceX", -1, 1, 8, 3, Q("18.35 mm")))
sketch4.addConstraint(Sketcher.Constraint("DistanceY", 1, 3, 3, 1, Q("11.590001 mm")))
sketch4.addConstraint(Sketcher.Constraint("DistanceY", 11, 3, 6, 3, Q("31.129002 mm")))
sketch4.addConstraint(Sketcher.Constraint("DistanceY", 0, 2, 3, 3, Q("12.111998 mm")))
sketch4.addConstraint(Sketcher.Constraint("DistanceX", -1, 1, 4, 2, Q("4.996098 mm")))
sketch4.addConstraint(Sketcher.Constraint("DistanceY", 5, 1, -1, 1, Q("35.046602 mm")))
sketch4.addConstraint(Sketcher.Constraint("DistanceX", 1, 1, 5, 3, Q("6.366698 mm")))
pocket1 = body.newObject("PartDesign::Pocket", "Pocket")
pocket1.Profile = sketch4
pocket1.Type = "ThroughAll"
pocket1.Reversed = True

doc.recompute()
